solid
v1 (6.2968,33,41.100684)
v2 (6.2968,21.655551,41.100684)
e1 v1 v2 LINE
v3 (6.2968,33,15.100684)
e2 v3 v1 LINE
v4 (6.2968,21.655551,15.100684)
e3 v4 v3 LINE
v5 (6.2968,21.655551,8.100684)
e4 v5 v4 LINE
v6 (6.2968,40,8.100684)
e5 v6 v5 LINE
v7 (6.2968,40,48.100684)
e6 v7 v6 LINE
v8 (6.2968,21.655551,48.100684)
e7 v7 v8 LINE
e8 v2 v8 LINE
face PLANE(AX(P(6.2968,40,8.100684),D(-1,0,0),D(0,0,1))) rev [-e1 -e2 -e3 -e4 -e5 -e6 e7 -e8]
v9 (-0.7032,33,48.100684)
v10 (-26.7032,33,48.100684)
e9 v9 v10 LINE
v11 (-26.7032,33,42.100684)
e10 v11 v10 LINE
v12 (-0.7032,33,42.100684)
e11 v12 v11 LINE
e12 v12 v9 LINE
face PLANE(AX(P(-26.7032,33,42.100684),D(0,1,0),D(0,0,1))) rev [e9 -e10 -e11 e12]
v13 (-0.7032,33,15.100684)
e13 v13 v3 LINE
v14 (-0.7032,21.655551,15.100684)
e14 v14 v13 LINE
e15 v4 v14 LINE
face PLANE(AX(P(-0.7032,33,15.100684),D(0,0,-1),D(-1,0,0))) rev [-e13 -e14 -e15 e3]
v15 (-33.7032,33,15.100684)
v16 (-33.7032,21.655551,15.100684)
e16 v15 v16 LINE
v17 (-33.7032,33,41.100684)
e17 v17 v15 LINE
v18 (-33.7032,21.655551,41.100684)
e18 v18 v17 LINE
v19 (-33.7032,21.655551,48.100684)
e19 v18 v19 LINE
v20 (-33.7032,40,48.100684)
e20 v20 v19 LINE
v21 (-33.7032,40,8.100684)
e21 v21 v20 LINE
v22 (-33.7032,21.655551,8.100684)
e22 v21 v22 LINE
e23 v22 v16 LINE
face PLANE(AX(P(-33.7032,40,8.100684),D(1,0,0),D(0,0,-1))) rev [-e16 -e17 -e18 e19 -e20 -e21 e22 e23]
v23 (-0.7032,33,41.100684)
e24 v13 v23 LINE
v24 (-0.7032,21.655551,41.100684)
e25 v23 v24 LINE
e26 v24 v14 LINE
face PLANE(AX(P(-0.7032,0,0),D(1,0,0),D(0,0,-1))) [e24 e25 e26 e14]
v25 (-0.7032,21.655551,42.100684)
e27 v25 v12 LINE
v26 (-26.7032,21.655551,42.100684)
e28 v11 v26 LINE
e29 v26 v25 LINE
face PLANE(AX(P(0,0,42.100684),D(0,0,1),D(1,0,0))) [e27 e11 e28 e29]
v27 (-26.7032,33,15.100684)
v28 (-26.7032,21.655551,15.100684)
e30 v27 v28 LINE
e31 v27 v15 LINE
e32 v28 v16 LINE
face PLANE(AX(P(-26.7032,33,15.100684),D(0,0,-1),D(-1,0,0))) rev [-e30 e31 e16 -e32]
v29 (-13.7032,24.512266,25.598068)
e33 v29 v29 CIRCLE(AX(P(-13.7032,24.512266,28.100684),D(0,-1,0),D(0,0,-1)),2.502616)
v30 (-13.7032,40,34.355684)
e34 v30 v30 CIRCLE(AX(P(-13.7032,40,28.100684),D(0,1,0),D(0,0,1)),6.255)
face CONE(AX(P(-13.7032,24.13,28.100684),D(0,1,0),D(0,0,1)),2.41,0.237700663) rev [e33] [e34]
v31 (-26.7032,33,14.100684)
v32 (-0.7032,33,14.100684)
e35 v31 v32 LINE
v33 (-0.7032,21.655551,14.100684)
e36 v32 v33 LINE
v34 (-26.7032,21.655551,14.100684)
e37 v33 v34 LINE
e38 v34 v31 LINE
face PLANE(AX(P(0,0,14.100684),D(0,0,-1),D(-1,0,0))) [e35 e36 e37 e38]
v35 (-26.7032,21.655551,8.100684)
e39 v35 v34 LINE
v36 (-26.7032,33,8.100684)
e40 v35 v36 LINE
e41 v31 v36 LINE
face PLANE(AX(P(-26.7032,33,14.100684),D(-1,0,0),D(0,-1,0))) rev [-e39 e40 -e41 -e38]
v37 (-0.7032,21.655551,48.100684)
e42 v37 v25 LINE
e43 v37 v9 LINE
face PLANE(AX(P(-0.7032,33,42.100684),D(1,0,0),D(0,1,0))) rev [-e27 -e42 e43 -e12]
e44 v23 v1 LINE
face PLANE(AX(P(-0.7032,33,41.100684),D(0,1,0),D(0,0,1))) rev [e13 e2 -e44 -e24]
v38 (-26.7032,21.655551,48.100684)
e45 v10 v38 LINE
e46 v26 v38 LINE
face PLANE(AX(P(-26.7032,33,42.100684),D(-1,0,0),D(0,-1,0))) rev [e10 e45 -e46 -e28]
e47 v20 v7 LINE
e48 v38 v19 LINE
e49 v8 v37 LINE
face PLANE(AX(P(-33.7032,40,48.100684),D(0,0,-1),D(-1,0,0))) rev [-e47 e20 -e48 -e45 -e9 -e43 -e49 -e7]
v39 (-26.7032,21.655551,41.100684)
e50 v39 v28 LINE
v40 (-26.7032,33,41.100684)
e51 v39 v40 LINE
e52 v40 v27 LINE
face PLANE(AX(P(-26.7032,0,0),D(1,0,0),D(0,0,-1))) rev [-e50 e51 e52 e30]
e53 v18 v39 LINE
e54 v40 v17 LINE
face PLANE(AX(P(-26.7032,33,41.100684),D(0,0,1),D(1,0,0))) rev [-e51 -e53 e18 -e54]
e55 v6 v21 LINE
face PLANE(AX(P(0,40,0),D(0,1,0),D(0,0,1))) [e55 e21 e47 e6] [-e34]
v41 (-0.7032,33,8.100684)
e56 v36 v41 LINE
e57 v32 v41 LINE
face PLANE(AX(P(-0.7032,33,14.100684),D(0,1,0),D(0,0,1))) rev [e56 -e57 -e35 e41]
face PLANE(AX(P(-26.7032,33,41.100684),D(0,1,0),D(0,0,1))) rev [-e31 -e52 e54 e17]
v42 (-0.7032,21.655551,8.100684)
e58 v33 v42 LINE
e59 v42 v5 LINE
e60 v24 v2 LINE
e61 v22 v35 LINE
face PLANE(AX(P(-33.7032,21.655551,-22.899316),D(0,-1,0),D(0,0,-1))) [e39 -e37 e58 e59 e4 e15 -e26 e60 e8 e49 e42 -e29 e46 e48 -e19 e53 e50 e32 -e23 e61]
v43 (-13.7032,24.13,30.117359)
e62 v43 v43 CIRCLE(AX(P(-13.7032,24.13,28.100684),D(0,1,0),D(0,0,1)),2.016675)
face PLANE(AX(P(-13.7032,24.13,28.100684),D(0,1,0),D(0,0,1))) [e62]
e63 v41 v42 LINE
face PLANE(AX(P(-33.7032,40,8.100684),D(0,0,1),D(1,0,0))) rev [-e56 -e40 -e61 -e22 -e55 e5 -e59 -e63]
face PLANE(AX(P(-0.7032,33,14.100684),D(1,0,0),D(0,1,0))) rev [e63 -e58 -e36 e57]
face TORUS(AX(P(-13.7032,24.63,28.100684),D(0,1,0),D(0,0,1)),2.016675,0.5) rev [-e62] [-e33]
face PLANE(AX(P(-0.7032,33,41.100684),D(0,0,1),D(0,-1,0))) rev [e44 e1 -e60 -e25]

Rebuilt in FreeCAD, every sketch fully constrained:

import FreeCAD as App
import Part
import Sketcher
from FreeCAD import Vector


def edges_at(feature, points):
    """Names of the edges that pass closest to the given points."""
    edges = feature.Shape.Edges
    near = lambda p: min(range(len(edges)), key=lambda i: edges[i].distToShape(Part.Vertex(*p))[0])
    return sorted({f"Edge{near(p) + 1}" for p in points})

doc = App.newDocument("Part")
body = doc.addObject("PartDesign::Body", "Body")

sketch1 = body.newObject("Sketcher::SketchObject", "Sketch")
sketch1.AttachmentSupport = (doc.getObject("XZ_Plane"), [""])
sketch1.MapMode = "FlatFace"
sketch1.addGeometry(Part.LineSegment(Vector(-34, 8, 0), Vector(-34, 48, 0)), False)
sketch1.addGeometry(Part.LineSegment(Vector(-34, 48, 0), Vector(6, 48, 0)), False)
sketch1.addGeometry(Part.LineSegment(Vector(6, 48, 0), Vector(6, 8, 0)), False)
sketch1.addGeometry(Part.LineSegment(Vector(6, 8, 0), Vector(-34, 8, 0)), False)
sketch1.addConstraint(Sketcher.Constraint("Coincident", 0, 2, 1, 1))
sketch1.addConstraint(Sketcher.Constraint("Coincident", 1, 2, 2, 1))
sketch1.addConstraint(Sketcher.Constraint("Coincident", 2, 2, 3, 1))
sketch1.addConstraint(Sketcher.Constraint("Coincident", 3, 2, 0, 1))
sketch1.addConstraint(Sketcher.Constraint("Vertical", 0))
sketch1.addConstraint(Sketcher.Constraint("Horizontal", 1))
sketch1.addConstraint(Sketcher.Constraint("Vertical", 2))
sketch1.addConstraint(Sketcher.Constraint("Horizontal", 3))
sketch1.addConstraint(Sketcher.Constraint("Equal", 3, 0))
sketch1.addConstraint(Sketcher.Constraint("DistanceX", 1, 1, 1, 2, 40.0))
sketch1.addConstraint(Sketcher.Constraint("DistanceX", 0, 2, -1, 1, 33.7032))
sketch1.addConstraint(Sketcher.Constraint("DistanceY", -1, 1, 0, 2, 48.100684))
pad1 = body.newObject("PartDesign::Pad", "Pad")
pad1.Profile = sketch1
pad1.Length = 40
pad1.Reversed = True

sketch2 = body.newObject("Sketcher::SketchObject", "Sketch001")
sketch2.AttachmentSupport = (doc.getObject("YZ_Plane"), [""])
sketch2.MapMode = "FlatFace"
sketch2.AttachmentOffset = App.Placement(Vector(0, 0, -33.7032), App.Rotation())
sketch2.addGeometry(Part.LineSegment(Vector(33, 15, 0), Vector(7, 15, 0)), False)
sketch2.addGeometry(Part.LineSegment(Vector(7, 15, 0), Vector(7, 41, 0)), False)
sketch2.addGeometry(Part.LineSegment(Vector(7, 41, 0), Vector(33, 41, 0)), False)
sketch2.addGeometry(Part.LineSegment(Vector(33, 41, 0), Vector(33, 15, 0)), False)
sketch2.addConstraint(Sketcher.Constraint("Coincident", 0, 2, 1, 1))
sketch2.addConstraint(Sketcher.Constraint("Coincident", 1, 2, 2, 1))
sketch2.addConstraint(Sketcher.Constraint("Coincident", 2, 2, 3, 1))
sketch2.addConstraint(Sketcher.Constraint("Coincident", 3, 2, 0, 1))
sketch2.addConstraint(Sketcher.Constraint("Horizontal", 0))
sketch2.addConstraint(Sketcher.Constraint("Vertical", 1))
sketch2.addConstraint(Sketcher.Constraint("Horizontal", 2))
sketch2.addConstraint(Sketcher.Constraint("Vertical", 3))
sketch2.addConstraint(Sketcher.Constraint("Equal", 2, 1))
sketch2.addConstraint(Sketcher.Constraint("DistanceX", 0, 2, 0, 1, 26.0))
sketch2.addConstraint(Sketcher.Constraint("DistanceX", -1, 1, 0, 2, 7.0))
sketch2.addConstraint(Sketcher.Constraint("DistanceY", -1, 1, 0, 2, 15.100684))
pocket1 = body.newObject("PartDesign::Pocket", "Pocket")
pocket1.Profile = sketch2
pocket1.Length = 7
pocket1.Reversed = True

sketch3 = body.newObject("Sketcher::SketchObject", "Sketch002")
sketch3.AttachmentSupport = (doc.getObject("XY_Plane"), [""])
sketch3.MapMode = "FlatFace"
sketch3.AttachmentOffset = App.Placement(Vector(0, 0, 8.100684), App.Rotation())
sketch3.addGeometry(Part.LineSegment(Vector(-1, 33, 0), Vector(-1, 7, 0)), False)
sketch3.addGeometry(Part.LineSegment(Vector(-1, 7, 0), Vector(-27, 7, 0)), False)
sketch3.addGeometry(Part.LineSegment(Vector(-27, 7, 0), Vector(-27, 33, 0)), False)
sketch3.addGeometry(Part.LineSegment(Vector(-27, 33, 0), Vector(-1, 33, 0)), False)
sketch3.addConstraint(Sketcher.Constraint("Coincident", 0, 2, 1, 1))
sketch3.addConstraint(Sketcher.Constraint("Coincident", 1, 2, 2, 1))
sketch3.addConstraint(Sketcher.Constraint("Coincident", 2, 2, 3, 1))
sketch3.addConstraint(Sketcher.Constraint("Coincident", 3, 2, 0, 1))
sketch3.addConstraint(Sketcher.Constraint("Vertical", 0))
sketch3.addConstraint(Sketcher.Constraint("Horizontal", 1))
sketch3.addConstraint(Sketcher.Constraint("Vertical", 2))
sketch3.addConstraint(Sketcher.Constraint("Horizontal", 3))
sketch3.addConstraint(Sketcher.Constraint("Equal", 3, 0))
sketch3.addConstraint(Sketcher.Constraint("DistanceX", 1, 2, 1, 1, 26.0))
sketch3.addConstraint(Sketcher.Constraint("DistanceY", -1, 1, 0, 2, 7.0))
sketch3.addConstraint(Sketcher.Constraint("DistanceX", 0, 2, -1, 1, 0.7032))
pocket2 = body.newObject("PartDesign::Pocket", "Pocket001")
pocket2.Profile = sketch3
pocket2.Length = 6
pocket2.Reversed = True

sketch4 = body.newObject("Sketcher::SketchObject", "Sketch003")
sketch4.AttachmentSupport = (doc.getObject("XY_Plane"), [""])
sketch4.MapMode = "FlatFace"
sketch4.AttachmentOffset = App.Placement(Vector(0, 0, 48.100684), App.Rotation())
sketch4.addGeometry(Part.LineSegment(Vector(-27, 33, 0), Vector(-27, 7, 0)), False)
sketch4.addGeometry(Part.LineSegment(Vector(-27, 7, 0), Vector(-1, 7, 0)), False)
sketch4.addGeometry(Part.LineSegment(Vector(-1, 7, 0), Vector(-1, 33, 0)), False)
sketch4.addGeometry(Part.LineSegment(Vector(-1, 33, 0), Vector(-27, 33, 0)), False)
sketch4.addConstraint(Sketcher.Constraint("Coincident", 0, 2, 1, 1))
sketch4.addConstraint(Sketcher.Constraint("Coincident", 1, 2, 2, 1))
sketch4.addConstraint(Sketcher.Constraint("Coincident", 2, 2, 3, 1))
sketch4.addConstraint(Sketcher.Constraint("Coincident", 3, 2, 0, 1))
sketch4.addConstraint(Sketcher.Constraint("Vertical", 0))
sketch4.addConstraint(Sketcher.Constraint("Horizontal", 1))
sketch4.addConstraint(Sketcher.Constraint("Vertical", 2))
sketch4.addConstraint(Sketcher.Constraint("Horizontal", 3))
sketch4.addConstraint(Sketcher.Constraint("Equal", 3, 0))
sketch4.addConstraint(Sketcher.Constraint("DistanceX", 1, 1, 1, 2, 26.0))
sketch4.addConstraint(Sketcher.Constraint("DistanceY", -1, 1, 0, 2, 7.0))
sketch4.addConstraint(Sketcher.Constraint("DistanceX", 0, 2, -1, 1, 26.7032))
pocket3 = body.newObject("PartDesign::Pocket", "Pocket002")
pocket3.Profile = sketch4
pocket3.Length = 6

sketch5 = body.newObject("Sketcher::SketchObject", "Sketch004")
sketch5.AttachmentSupport = (doc.getObject("YZ_Plane"), [""])
sketch5.MapMode = "FlatFace"
sketch5.AttachmentOffset = App.Placement(Vector(0, 0, 6.2968), App.Rotation())
sketch5.addGeometry(Part.LineSegment(Vector(33, 41, 0), Vector(7, 41, 0)), False)
sketch5.addGeometry(Part.LineSegment(Vector(7, 41, 0), Vector(7, 15, 0)), False)
sketch5.addGeometry(Part.LineSegment(Vector(7, 15, 0), Vector(33, 15, 0)), False)
sketch5.addGeometry(Part.LineSegment(Vector(33, 15, 0), Vector(33, 41, 0)), False)
sketch5.addConstraint(Sketcher.Constraint("Coincident", 0, 2, 1, 1))
sketch5.addConstraint(Sketcher.Constraint("Coincident", 1, 2, 2, 1))
sketch5.addConstraint(Sketcher.Constraint("Coincident", 2, 2, 3, 1))
sketch5.addConstraint(Sketcher.Constraint("Coincident", 3, 2, 0, 1))
sketch5.addConstraint(Sketcher.Constraint("Horizontal", 0))
sketch5.addConstraint(Sketcher.Constraint("Vertical", 1))
sketch5.addConstraint(Sketcher.Constraint("Horizontal", 2))
sketch5.addConstraint(Sketcher.Constraint("Vertical", 3))
sketch5.addConstraint(Sketcher.Constraint("Equal", 2, 1))
sketch5.addConstraint(Sketcher.Constraint("DistanceX", 0, 2, 0, 1, 26.0))
sketch5.addConstraint(Sketcher.Constraint("DistanceX", -1, 1, 0, 2, 7.0))
sketch5.addConstraint(Sketcher.Constraint("DistanceY", -1, 1, 0, 2, 41.100684))
pocket4 = body.newObject("PartDesign::Pocket", "Pocket003")
pocket4.Profile = sketch5
pocket4.Length = 7

sketch6 = body.newObject("Sketcher::SketchObject", "Sketch005")
sketch6.AttachmentSupport = (doc.getObject("XZ_Plane"), [""])
sketch6.MapMode = "FlatFace"
sketch6.AttachmentOffset = App.Placement(Vector(0, 0, -40), App.Rotation())
sketch6.addGeometry(Part.Circle(Vector(-14, 28, 0), Vector(0, 0, 1), 6), False)
sketch6.addConstraint(Sketcher.Constraint("Diameter", 0, 12.51))
sketch6.addConstraint(Sketcher.Constraint("DistanceX", 0, 3, -1, 1, 13.7032))
sketch6.addConstraint(Sketcher.Constraint("DistanceY", -1, 1, 0, 3, 28.100684))

sketch7 = body.newObject("Sketcher::SketchObject", "Sketch006")
sketch7.AttachmentSupport = (doc.getObject("XZ_Plane"), [""])
sketch7.MapMode = "FlatFace"
sketch7.AttachmentOffset = App.Placement(Vector(0, 0, -24.13), App.Rotation())
sketch7.addGeometry(Part.Circle(Vector(-13.7, 28.1, 0), Vector(0, 0, 1), 2.4), False)
sketch7.addConstraint(Sketcher.Constraint("Diameter", 0, 4.82))
sketch7.addConstraint(Sketcher.Constraint("DistanceX", 0, 3, -1, 1, 13.7032))
sketch7.addConstraint(Sketcher.Constraint("DistanceY", -1, 1, 0, 3, 28.100684))

subtractiveloft = body.newObject("PartDesign::SubtractiveLoft", "SubtractiveLoft")
subtractiveloft.Profile = sketch6
subtractiveloft.Sections = [sketch7]
doc.recompute()

fillet = body.newObject("PartDesign::Fillet", "Fillet")
fillet.Base = (subtractiveloft, edges_at(subtractiveloft, [(-16.113, 24.13, 28.101)]))
fillet.Radius = 0.5

sketch8 = body.newObject("Sketcher::SketchObject", "Sketch007")
sketch8.AttachmentSupport = (doc.getObject("XY_Plane"), [""])
sketch8.MapMode = "FlatFace"
sketch8.AttachmentOffset = App.Placement(Vector(0, 0, 14.100684), App.Rotation())
sketch8.addGeometry(Part.LineSegment(Vector(6, 22, 0), Vector(6, 0, 0)), False)
sketch8.addGeometry(Part.LineSegment(Vector(6, 0, 0), Vector(-34, 0, 0)), False)
sketch8.addGeometry(Part.LineSegment(Vector(-34, 0, 0), Vector(-34, 22, 0)), False)
sketch8.addGeometry(Part.LineSegment(Vector(-34, 22, 0), Vector(6, 22, 0)), False)
sketch8.addConstraint(Sketcher.Constraint("Coincident", 0, 2, 1, 1))
sketch8.addConstraint(Sketcher.Constraint("Coincident", 1, 2, 2, 1))
sketch8.addConstraint(Sketcher.Constraint("Coincident", 2, 2, 3, 1))
sketch8.addConstraint(Sketcher.Constraint("Coincident", 3, 2, 0, 1))
sketch8.addConstraint(Sketcher.Constraint("Vertical", 0))
sketch8.addConstraint(Sketcher.Constraint("Horizontal", 1))
sketch8.addConstraint(Sketcher.Constraint("Vertical", 2))
sketch8.addConstraint(Sketcher.Constraint("Horizontal", 3))
sketch8.addConstraint(Sketcher.Constraint("PointOnObject", 0, 2, -1))
sketch8.addConstraint(Sketcher.Constraint("DistanceX", 1, 2, 1, 1, 40.0))
sketch8.addConstraint(Sketcher.Constraint("DistanceY", 0, 2, 0, 1, 21.655551))
sketch8.addConstraint(Sketcher.Constraint("DistanceX", -1, 1, 0, 2, 6.2968))
pocket5 = body.newObject("PartDesign::Pocket", "Pocket004")
pocket5.Profile = sketch8
pocket5.Type = "ThroughAll"
pocket5.Midplane = True

doc.recompute()
